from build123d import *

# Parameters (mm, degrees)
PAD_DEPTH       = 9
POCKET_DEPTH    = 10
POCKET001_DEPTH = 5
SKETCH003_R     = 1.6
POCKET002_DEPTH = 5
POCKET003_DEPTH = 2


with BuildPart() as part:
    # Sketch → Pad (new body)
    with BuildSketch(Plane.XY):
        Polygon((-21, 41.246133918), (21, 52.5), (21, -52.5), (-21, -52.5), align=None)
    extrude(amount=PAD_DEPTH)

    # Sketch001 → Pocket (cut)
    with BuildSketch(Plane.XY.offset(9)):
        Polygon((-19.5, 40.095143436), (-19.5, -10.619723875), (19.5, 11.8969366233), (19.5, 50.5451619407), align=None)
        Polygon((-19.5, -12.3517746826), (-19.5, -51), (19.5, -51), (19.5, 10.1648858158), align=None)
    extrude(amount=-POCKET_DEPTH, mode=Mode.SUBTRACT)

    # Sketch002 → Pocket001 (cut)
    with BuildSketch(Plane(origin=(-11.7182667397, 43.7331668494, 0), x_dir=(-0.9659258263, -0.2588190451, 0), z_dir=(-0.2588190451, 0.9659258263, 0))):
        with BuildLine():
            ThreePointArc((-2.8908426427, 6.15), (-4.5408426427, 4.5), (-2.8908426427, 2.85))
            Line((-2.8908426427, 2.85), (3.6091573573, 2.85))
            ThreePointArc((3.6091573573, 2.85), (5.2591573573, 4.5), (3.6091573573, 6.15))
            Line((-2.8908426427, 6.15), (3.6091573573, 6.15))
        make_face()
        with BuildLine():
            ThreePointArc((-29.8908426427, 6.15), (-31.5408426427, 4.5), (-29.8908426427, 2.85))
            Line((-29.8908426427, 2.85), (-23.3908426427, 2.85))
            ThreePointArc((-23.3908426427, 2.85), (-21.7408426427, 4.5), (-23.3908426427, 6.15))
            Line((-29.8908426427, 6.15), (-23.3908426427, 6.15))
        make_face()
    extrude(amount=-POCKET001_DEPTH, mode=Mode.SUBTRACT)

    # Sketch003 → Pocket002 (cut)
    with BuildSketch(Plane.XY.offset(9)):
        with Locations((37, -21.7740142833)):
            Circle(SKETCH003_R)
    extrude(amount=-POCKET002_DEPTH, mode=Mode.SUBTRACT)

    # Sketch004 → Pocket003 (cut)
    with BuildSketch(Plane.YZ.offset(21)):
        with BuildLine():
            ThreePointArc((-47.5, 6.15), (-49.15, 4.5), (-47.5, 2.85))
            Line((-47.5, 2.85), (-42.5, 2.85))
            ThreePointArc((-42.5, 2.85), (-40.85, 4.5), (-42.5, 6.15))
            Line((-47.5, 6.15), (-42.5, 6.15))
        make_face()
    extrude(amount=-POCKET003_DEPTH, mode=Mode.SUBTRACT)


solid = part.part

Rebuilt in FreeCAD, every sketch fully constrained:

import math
import FreeCAD as App
import Part
import Sketcher

V = App.Vector
Q = App.Units.Quantity


def add_polygon(sketch, points):
    """Adds a closed chain of lines whose ends are joined by coincident constraints."""
    first, n = sketch.GeometryCount, len(points)
    for a, b in zip(points, points[1:] + points[:1]):
        sketch.addGeometry(Part.LineSegment(App.Vector(*a, 0), App.Vector(*b, 0)), False)
    for i in range(n):
        sketch.addConstraint(Sketcher.Constraint("Coincident", first + i, 2, first + (i + 1) % n, 1))

doc = App.newDocument("Part")
body = doc.addObject("PartDesign::Body", "Body")

# Sketch on XY plane
sketch1 = body.newObject("Sketcher::SketchObject", "Sketch")
sketch1.AttachmentSupport = (doc.getObject("XY_Plane"), [""])
sketch1.MapMode = "FlatFace"
add_polygon(sketch1, [(21, 52.5), (-21, 41.246134), (-21, -52.5), (21, -52.5)])  # lines 0-3
sketch1.addConstraint([
    Sketcher.Constraint("Vertical", 1),
    Sketcher.Constraint("Horizontal", 2),
    Sketcher.Constraint("Vertical", 3),
    Sketcher.Constraint("Symmetric", 1, 2, 3, 2, -1, 1),
    Sketcher.Constraint("DistanceX", 2, 1, 2, 2, 42.0),
    Sketcher.Constraint("DistanceY", 3, 1, 3, 2, 105.0),
    Sketcher.Constraint("Angle", 0, Q("-165 deg")),
])
pad1 = body.newObject("PartDesign::Pad", "Pad")
pad1.Profile = sketch1
pad1.Length = 9

# Sketch on XY plane
sketch2 = body.newObject("Sketcher::SketchObject", "Sketch001")
sketch2.AttachmentSupport = (doc.getObject("XY_Plane"), [""])
sketch2.MapMode = "FlatFace"
sketch2.AttachmentOffset = App.Placement(V(0, 0, 9), App.Rotation())
add_polygon(sketch2, [(-19.5, 40.095143), (-19.5, -10.619724), (19.5, 11.896937), (19.5, 50.545162)])  # lines 0-3
add_polygon(sketch2, [(-19.5, -12.351775), (-19.5, -51), (19.5, -51), (19.5, 10.164886)])  # lines 4-7
sketch2.addConstraint([
    Sketcher.Constraint("Vertical", 0),
    Sketcher.Constraint("Vertical", 2),
    Sketcher.Constraint("Vertical", 4),
    Sketcher.Constraint("Horizontal", 5),
    Sketcher.Constraint("Vertical", 6),
    Sketcher.Constraint("Parallel", 1, 7),
    Sketcher.Constraint("Vertical", 3, 2, 4, 2),
    Sketcher.Constraint("Vertical", 2, 2, 5, 2),
    Sketcher.Constraint("Equal", 2, 4),
    Sketcher.Constraint("DistanceX", 5, 1, 5, 2, 39.0),
    Sketcher.Constraint("Angle", 1, Q("30 deg")),
    Sketcher.Constraint("Angle", 3, Q("-165 deg")),
    Sketcher.Constraint("DistanceY", 4, 2, -1, 1, 51.0),
    Sketcher.Constraint("DistanceX", 0, 2, -1, 1, 19.5),
    Sketcher.Constraint("DistanceY", 0, 2, 0, 1, 50.714867),
    Sketcher.Constraint("DistanceY", -1, 1, 2, 2, 50.545162),
])
pocket1 = body.newObject("PartDesign::Pocket", "Pocket")
pocket1.Profile = sketch2
pocket1.Length = 10

# Sketch on an angled plane
sketch3 = body.newObject("Sketcher::SketchObject", "Sketch002")
sketch3.Placement = App.Placement(V(-11.718267, 43.733167, 0), App.Rotation(V(-0.965925826, -0.258819045, 0), V(0, 0, 0.999999999), V(-0.258819045, 0.965925826, 0), "ZXY"))
sketch3.addGeometry([
    Part.ArcOfCircle(Part.Circle(V(-2.890843, 4.5, 0), V(0, 0, 1), 1.65), math.radians(90), math.radians(270)),  # 0
    Part.LineSegment(V(-2.890843, 2.85, 0), V(3.609157, 2.85, 0)),  # 1
    Part.ArcOfCircle(Part.Circle(V(3.609157, 4.5, 0), V(0, 0, 1), 1.65), math.radians(-90), math.radians(90)),  # 2
    Part.LineSegment(V(3.609157, 6.15, 0), V(-2.890843, 6.15, 0)),  # 3
    Part.ArcOfCircle(Part.Circle(V(-29.890843, 4.5, 0), V(0, 0, 1), 1.65), math.radians(90), math.radians(270)),  # 4
    Part.LineSegment(V(-29.890843, 2.85, 0), V(-23.390843, 2.85, 0)),  # 5
    Part.ArcOfCircle(Part.Circle(V(-23.390843, 4.5, 0), V(0, 0, 1), 1.65), math.radians(-90), math.radians(90)),  # 6
    Part.LineSegment(V(-23.390843, 6.15, 0), V(-29.890843, 6.15, 0)),  # 7
], False)
sketch3.addConstraint([
    Sketcher.Constraint("Tangent", 0, 2, 1, 1),
    Sketcher.Constraint("Tangent", 1, 2, 2, 1),
    Sketcher.Constraint("Tangent", 2, 2, 3, 1),
    Sketcher.Constraint("Tangent", 3, 2, 0, 1),
    Sketcher.Constraint("Tangent", 4, 2, 5, 1),
    Sketcher.Constraint("Tangent", 5, 2, 6, 1),
    Sketcher.Constraint("Tangent", 6, 2, 7, 1),
    Sketcher.Constraint("Tangent", 7, 2, 4, 1),
    Sketcher.Constraint("Horizontal", 1),
    Sketcher.Constraint("Horizontal", 3),
    Sketcher.Constraint("Horizontal", 5),
    Sketcher.Constraint("Horizontal", 7),
    Sketcher.Constraint("Equal", 2, 4),
    Sketcher.Constraint("Horizontal", 2, 3, 4, 3),
    Sketcher.Constraint("Equal", 3, 5),
    Sketcher.Constraint("Radius", 0, 1.65),
    Sketcher.Constraint("DistanceX", 1, 1, 1, 2, 6.5),
    Sketcher.Constraint("DistanceX", 4, 3, 0, 3, 27.0),
    Sketcher.Constraint("DistanceY", -1, 1, 0, 3, 4.5),
    Sketcher.Constraint("DistanceX", 0, 3, -1, 1, 2.890843),
])
pocket2 = body.newObject("PartDesign::Pocket", "Pocket001")
pocket2.Profile = sketch3
pocket2.Length = 5

# Sketch on XY plane
sketch4 = body.newObject("Sketcher::SketchObject", "Sketch003")
sketch4.AttachmentSupport = (doc.getObject("XY_Plane"), [""])
sketch4.MapMode = "FlatFace"
sketch4.AttachmentOffset = App.Placement(V(0, 0, 9), App.Rotation())
sketch4.addGeometry(Part.Circle(V(37, -21.774014, 0), V(0, 0, 1), 1.6), False)
sketch4.addConstraint([
    Sketcher.Constraint("Diameter", 0, 3.2),
    Sketcher.Constraint("DistanceX", -1, 1, 0, 3, 37.0),
    Sketcher.Constraint("DistanceY", 0, 3, -1, 1, 21.774014),
])
pocket3 = body.newObject("PartDesign::Pocket", "Pocket002")
pocket3.Profile = sketch4
pocket3.Length = 5

# Sketch on YZ plane
sketch5 = body.newObject("Sketcher::SketchObject", "Sketch004")
sketch5.AttachmentSupport = (doc.getObject("YZ_Plane"), [""])
sketch5.MapMode = "FlatFace"
sketch5.AttachmentOffset = App.Placement(V(0, 0, 21), App.Rotation())
sketch5.addGeometry([
    Part.ArcOfCircle(Part.Circle(V(-47.5, 4.5, 0), V(0, 0, 1), 1.65), math.radians(90), math.radians(270)),
    Part.LineSegment(V(-47.5, 2.85, 0), V(-42.5, 2.85, 0)),
    Part.ArcOfCircle(Part.Circle(V(-42.5, 4.5, 0), V(0, 0, 1), 1.65), math.radians(-90), math.radians(90)),
    Part.LineSegment(V(-42.5, 6.15, 0), V(-47.5, 6.15, 0)),
], False)
sketch5.addConstraint([
    Sketcher.Constraint("Tangent", 0, 2, 1, 1),
    Sketcher.Constraint("Tangent", 1, 2, 2, 1),
    Sketcher.Constraint("Tangent", 2, 2, 3, 1),
    Sketcher.Constraint("Tangent", 3, 2, 0, 1),
    Sketcher.Constraint("Horizontal", 1),
    Sketcher.Constraint("Horizontal", 3),
    Sketcher.Constraint("DistanceX", 1, 1, 1, 2, 5.0),
    Sketcher.Constraint("Radius", 0, 1.65),
    Sketcher.Constraint("DistanceX", 0, 3, -1, 1, 47.5),
    Sketcher.Constraint("DistanceY", -1, 1, 0, 3, 4.5),
])
pocket4 = body.newObject("PartDesign::Pocket", "Pocket003")
pocket4.Profile = sketch5
pocket4.Length = 2

doc.recompute()
